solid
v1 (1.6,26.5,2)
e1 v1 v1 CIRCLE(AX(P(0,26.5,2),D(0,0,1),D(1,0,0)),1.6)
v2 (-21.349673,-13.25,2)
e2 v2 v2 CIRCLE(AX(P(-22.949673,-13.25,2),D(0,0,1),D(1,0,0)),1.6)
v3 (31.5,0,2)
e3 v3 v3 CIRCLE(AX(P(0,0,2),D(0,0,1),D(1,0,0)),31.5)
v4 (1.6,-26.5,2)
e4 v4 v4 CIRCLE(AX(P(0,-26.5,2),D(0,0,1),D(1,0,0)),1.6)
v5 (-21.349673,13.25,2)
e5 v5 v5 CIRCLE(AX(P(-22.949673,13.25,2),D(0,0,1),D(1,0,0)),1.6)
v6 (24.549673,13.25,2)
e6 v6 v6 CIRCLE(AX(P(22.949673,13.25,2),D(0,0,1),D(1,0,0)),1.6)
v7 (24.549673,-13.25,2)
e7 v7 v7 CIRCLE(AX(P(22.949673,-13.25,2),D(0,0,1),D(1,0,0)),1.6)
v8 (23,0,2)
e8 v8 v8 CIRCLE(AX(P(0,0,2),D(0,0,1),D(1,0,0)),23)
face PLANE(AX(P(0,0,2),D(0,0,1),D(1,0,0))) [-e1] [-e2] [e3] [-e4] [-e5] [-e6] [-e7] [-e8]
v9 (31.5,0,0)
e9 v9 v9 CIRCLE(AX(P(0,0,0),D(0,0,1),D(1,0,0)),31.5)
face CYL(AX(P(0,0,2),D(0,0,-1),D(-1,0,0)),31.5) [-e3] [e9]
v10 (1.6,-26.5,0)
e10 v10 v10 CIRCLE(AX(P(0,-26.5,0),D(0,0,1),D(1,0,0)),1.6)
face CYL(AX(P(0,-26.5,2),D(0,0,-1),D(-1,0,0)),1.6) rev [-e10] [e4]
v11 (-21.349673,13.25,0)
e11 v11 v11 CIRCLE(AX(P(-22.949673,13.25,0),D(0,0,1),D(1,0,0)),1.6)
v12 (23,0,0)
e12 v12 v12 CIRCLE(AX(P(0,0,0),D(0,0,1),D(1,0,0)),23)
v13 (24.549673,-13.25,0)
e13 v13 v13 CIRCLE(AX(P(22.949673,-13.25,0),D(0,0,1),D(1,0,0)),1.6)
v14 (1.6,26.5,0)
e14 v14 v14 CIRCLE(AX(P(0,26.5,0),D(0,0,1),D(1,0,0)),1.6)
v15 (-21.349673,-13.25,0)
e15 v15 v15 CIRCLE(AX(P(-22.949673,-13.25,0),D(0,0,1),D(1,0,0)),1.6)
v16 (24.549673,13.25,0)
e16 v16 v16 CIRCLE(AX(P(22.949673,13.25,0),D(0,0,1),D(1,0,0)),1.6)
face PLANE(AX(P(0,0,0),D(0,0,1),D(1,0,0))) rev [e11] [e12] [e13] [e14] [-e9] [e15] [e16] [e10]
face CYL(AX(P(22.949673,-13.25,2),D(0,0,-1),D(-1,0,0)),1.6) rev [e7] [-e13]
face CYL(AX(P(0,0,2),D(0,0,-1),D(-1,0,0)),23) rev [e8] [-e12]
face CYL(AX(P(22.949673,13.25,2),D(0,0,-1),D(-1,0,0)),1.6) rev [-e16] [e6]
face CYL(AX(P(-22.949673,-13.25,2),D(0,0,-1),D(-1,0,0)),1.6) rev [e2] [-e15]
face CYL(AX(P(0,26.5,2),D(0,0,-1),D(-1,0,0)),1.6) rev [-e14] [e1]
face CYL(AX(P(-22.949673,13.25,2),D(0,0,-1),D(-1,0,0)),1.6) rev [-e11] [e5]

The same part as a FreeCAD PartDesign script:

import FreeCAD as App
import Part
import Sketcher
from FreeCAD import Vector

doc = App.newDocument("Part")
body = doc.addObject("PartDesign::Body", "Body")

# Sketch on XY plane
sketch1 = body.newObject("Sketcher::SketchObject", "Sketch")
sketch1.AttachmentSupport = (doc.getObject("XY_Plane"), [""])
sketch1.MapMode = "FlatFace"
sketch1.addGeometry(Part.Circle(Vector(0, 0, 0), Vector(0, 0, 1), 31.5), False)
sketch1.addGeometry(Part.Circle(Vector(-22.9, -13.2, 0), Vector(0, 0, 1), 1.6), False)
sketch1.addGeometry(Part.Circle(Vector(0, -26.5, 0), Vector(0, 0, 1), 1.6), False)
sketch1.addGeometry(Part.Circle(Vector(22.9, -13.2, 0), Vector(0, 0, 1), 1.6), False)
sketch1.addGeometry(Part.Circle(Vector(-22.9, 13.2, 0), Vector(0, 0, 1), 1.6), False)
sketch1.addGeometry(Part.Circle(Vector(0, 0, 0), Vector(0, 0, 1), 23), False)
sketch1.addGeometry(Part.Circle(Vector(22.9, 13.2, 0), Vector(0, 0, 1), 1.6), False)
sketch1.addGeometry(Part.Circle(Vector(0, 26.5, 0), Vector(0, 0, 1), 1.6), False)
sketch1.addConstraint(Sketcher.Constraint("Coincident", 0, 3, -1, 1))
sketch1.addConstraint(Sketcher.Constraint("Coincident", 5, 3, -1, 1))
sketch1.addConstraint(Sketcher.Constraint("Equal", 1, 2))
sketch1.addConstraint(Sketcher.Constraint("Equal", 2, 3))
sketch1.addConstraint(Sketcher.Constraint("Equal", 3, 4))
sketch1.addConstraint(Sketcher.Constraint("Equal", 4, 6))
sketch1.addConstraint(Sketcher.Constraint("Equal", 6, 7))
sketch1.addConstraint(Sketcher.Constraint("Symmetric", 3, 3, 4, 3, -1, 1))
sketch1.addConstraint(Sketcher.Constraint("Symmetric", 1, 3, 6, 3, -1, 1))
sketch1.addConstraint(Sketcher.Constraint("Symmetric", 2, 3, 7, 3, -1, 1))
sketch1.addConstraint(Sketcher.Constraint("Symmetric", 1, 3, 3, 3, -2))
sketch1.addConstraint(Sketcher.Constraint("PointOnObject", 2, 3, -2))
sketch1.addConstraint(Sketcher.Constraint("Diameter", 0, 63.0))
sketch1.addConstraint(Sketcher.Constraint("Diameter", 5, 46.0))
sketch1.addConstraint(Sketcher.Constraint("Diameter", 1, 3.2))
sketch1.addConstraint(Sketcher.Constraint("DistanceY", 2, 3, -1, 1, 26.5))
sketch1.addConstraint(Sketcher.Constraint("DistanceY", 1, 3, 4, 3, 26.5))
sketch1.addConstraint(Sketcher.Constraint("DistanceX", 1, 3, -1, 1, 22.949673))
pad1 = body.newObject("PartDesign::Pad", "Pad")
pad1.Profile = sketch1
pad1.Length = 2

doc.recompute()
